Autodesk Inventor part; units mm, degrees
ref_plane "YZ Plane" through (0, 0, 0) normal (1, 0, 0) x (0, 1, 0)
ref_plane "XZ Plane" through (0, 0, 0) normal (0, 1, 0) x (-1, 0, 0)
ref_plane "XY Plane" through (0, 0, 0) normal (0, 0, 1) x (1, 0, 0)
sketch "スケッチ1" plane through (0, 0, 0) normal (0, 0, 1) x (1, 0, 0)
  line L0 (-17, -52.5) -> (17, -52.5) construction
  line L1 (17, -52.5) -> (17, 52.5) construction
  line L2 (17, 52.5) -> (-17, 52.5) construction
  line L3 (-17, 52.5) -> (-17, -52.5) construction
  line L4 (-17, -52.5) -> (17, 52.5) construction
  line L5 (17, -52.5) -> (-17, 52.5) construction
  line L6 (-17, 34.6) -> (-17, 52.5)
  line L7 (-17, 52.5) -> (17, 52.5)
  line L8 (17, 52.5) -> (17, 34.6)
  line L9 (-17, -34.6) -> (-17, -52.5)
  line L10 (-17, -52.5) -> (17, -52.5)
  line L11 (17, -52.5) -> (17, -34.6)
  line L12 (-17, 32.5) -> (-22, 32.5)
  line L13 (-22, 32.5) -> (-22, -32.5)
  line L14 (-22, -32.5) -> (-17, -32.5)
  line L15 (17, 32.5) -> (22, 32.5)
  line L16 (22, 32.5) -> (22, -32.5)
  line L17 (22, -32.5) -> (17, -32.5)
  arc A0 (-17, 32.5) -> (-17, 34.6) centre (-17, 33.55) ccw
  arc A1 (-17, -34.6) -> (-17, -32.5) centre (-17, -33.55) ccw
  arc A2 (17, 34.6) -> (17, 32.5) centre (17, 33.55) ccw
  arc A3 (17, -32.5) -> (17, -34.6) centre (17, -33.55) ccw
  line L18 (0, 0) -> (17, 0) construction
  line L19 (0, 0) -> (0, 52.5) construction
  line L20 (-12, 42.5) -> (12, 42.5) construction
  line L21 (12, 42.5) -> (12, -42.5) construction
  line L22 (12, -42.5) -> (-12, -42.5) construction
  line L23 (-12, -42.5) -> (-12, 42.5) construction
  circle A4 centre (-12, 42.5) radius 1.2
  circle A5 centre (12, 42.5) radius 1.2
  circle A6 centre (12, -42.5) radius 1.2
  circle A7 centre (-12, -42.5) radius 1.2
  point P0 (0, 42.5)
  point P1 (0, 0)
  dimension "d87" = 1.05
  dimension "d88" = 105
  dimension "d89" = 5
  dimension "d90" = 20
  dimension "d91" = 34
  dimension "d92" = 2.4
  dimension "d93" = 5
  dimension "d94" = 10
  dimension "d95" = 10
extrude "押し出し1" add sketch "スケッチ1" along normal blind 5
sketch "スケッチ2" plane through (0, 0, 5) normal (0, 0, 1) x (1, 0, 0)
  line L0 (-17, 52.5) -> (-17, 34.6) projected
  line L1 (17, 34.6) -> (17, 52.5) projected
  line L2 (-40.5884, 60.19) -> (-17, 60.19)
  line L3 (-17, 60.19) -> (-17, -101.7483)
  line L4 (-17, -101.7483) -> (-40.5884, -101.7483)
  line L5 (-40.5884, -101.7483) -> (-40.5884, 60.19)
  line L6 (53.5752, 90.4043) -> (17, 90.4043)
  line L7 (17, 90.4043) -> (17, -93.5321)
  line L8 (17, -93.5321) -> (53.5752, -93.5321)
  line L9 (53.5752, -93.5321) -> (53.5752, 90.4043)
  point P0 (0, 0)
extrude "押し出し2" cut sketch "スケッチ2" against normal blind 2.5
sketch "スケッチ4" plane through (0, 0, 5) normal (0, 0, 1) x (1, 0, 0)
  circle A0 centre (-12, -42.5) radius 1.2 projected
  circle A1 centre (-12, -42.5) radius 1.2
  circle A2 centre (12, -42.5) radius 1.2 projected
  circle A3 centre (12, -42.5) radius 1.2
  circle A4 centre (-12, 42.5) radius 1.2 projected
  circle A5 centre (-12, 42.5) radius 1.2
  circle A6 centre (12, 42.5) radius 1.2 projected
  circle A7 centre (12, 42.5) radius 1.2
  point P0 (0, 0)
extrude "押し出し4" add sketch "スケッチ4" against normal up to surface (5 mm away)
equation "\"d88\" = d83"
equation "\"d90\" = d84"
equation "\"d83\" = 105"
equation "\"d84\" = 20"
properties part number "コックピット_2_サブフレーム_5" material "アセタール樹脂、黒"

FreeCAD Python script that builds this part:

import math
import FreeCAD as App
import Part
import Sketcher
from FreeCAD import Vector
Q = App.Units.Quantity

doc = App.newDocument("Part")
body = doc.addObject("PartDesign::Body", "Body")

# Sketch on XY plane
sketch1 = body.newObject("Sketcher::SketchObject", "Sketch")
sketch1.AttachmentSupport = (doc.getObject("XY_Plane"), [""])
sketch1.MapMode = "FlatFace"
sketch1.addGeometry(Part.LineSegment(Vector(-17, 52.5, 0), Vector(-17, 34.6, 0)), False)
sketch1.addGeometry(Part.ArcOfCircle(Part.Circle(Vector(-17, 33.5, 0), Vector(0, 0, 1), 1), math.radians(-90), math.radians(90)), False)
sketch1.addGeometry(Part.LineSegment(Vector(-17, 32.5, 0), Vector(-22, 32.5, 0)), False)
sketch1.addGeometry(Part.LineSegment(Vector(-22, 32.5, 0), Vector(-22, -32.5, 0)), False)
sketch1.addGeometry(Part.LineSegment(Vector(-22, -32.5, 0), Vector(-17, -32.5, 0)), False)
sketch1.addGeometry(Part.ArcOfCircle(Part.Circle(Vector(-17, -33.5, 0), Vector(0, 0, 1), 1.1), math.radians(-90), math.radians(90)), False)
sketch1.addGeometry(Part.LineSegment(Vector(-17, -34.6, 0), Vector(-17, -52.5, 0)), False)
sketch1.addGeometry(Part.LineSegment(Vector(-17, -52.5, 0), Vector(17, -52.5, 0)), False)
sketch1.addGeometry(Part.LineSegment(Vector(17, -52.5, 0), Vector(17, -34.6, 0)), False)
sketch1.addGeometry(Part.ArcOfCircle(Part.Circle(Vector(17, -33.5, 0), Vector(0, 0, 1), 1), math.radians(90), math.radians(270)), False)
sketch1.addGeometry(Part.LineSegment(Vector(17, -32.5, 0), Vector(22, -32.5, 0)), False)
sketch1.addGeometry(Part.LineSegment(Vector(22, -32.5, 0), Vector(22, 32.5, 0)), False)
sketch1.addGeometry(Part.LineSegment(Vector(22, 32.5, 0), Vector(17, 32.5, 0)), False)
sketch1.addGeometry(Part.ArcOfCircle(Part.Circle(Vector(17, 33.5, 0), Vector(0, 0, 1), 1.1), math.radians(90), math.radians(270)), False)
sketch1.addGeometry(Part.LineSegment(Vector(17, 34.6, 0), Vector(17, 52.5, 0)), False)
sketch1.addGeometry(Part.LineSegment(Vector(17, 52.5, 0), Vector(-17, 52.5, 0)), False)
sketch1.addGeometry(Part.Circle(Vector(-12, -42.5, 0), Vector(0, 0, 1), 1.2), False)
sketch1.addGeometry(Part.Circle(Vector(12, -42.5, 0), Vector(0, 0, 1), 1.2), False)
sketch1.addGeometry(Part.Circle(Vector(-12, 42.5, 0), Vector(0, 0, 1), 1.2), False)
sketch1.addGeometry(Part.Circle(Vector(12, 42.5, 0), Vector(0, 0, 1), 1.2), False)
sketch1.addConstraint(Sketcher.Constraint("Coincident", 0, 2, 1, 2))
sketch1.addConstraint(Sketcher.Constraint("Tangent", 1, 1, 2, 1))
sketch1.addConstraint(Sketcher.Constraint("Coincident", 2, 2, 3, 1))
sketch1.addConstraint(Sketcher.Constraint("Coincident", 3, 2, 4, 1))
sketch1.addConstraint(Sketcher.Constraint("Tangent", 4, 2, 5, 2))
sketch1.addConstraint(Sketcher.Constraint("Coincident", 5, 1, 6, 1))
sketch1.addConstraint(Sketcher.Constraint("Coincident", 6, 2, 7, 1))
sketch1.addConstraint(Sketcher.Constraint("Coincident", 7, 2, 8, 1))
sketch1.addConstraint(Sketcher.Constraint("Coincident", 8, 2, 9, 2))
sketch1.addConstraint(Sketcher.Constraint("Tangent", 9, 1, 10, 1))
sketch1.addConstraint(Sketcher.Constraint("Coincident", 10, 2, 11, 1))
sketch1.addConstraint(Sketcher.Constraint("Coincident", 11, 2, 12, 1))
sketch1.addConstraint(Sketcher.Constraint("Tangent", 12, 2, 13, 2))
sketch1.addConstraint(Sketcher.Constraint("Coincident", 13, 1, 14, 1))
sketch1.addConstraint(Sketcher.Constraint("Coincident", 14, 2, 15, 1))
sketch1.addConstraint(Sketcher.Constraint("Coincident", 15, 2, 0, 1))
sketch1.addConstraint(Sketcher.Constraint("Vertical", 0))
sketch1.addConstraint(Sketcher.Constraint("Horizontal", 2))
sketch1.addConstraint(Sketcher.Constraint("Vertical", 3))
sketch1.addConstraint(Sketcher.Constraint("Horizontal", 4))
sketch1.addConstraint(Sketcher.Constraint("Vertical", 6))
sketch1.addConstraint(Sketcher.Constraint("Horizontal", 7))
sketch1.addConstraint(Sketcher.Constraint("Vertical", 8))
sketch1.addConstraint(Sketcher.Constraint("Horizontal", 10))
sketch1.addConstraint(Sketcher.Constraint("Vertical", 11))
sketch1.addConstraint(Sketcher.Constraint("Horizontal", 12))
sketch1.addConstraint(Sketcher.Constraint("Vertical", 14))
sketch1.addConstraint(Sketcher.Constraint("Horizontal", 15))
sketch1.addConstraint(Sketcher.Constraint("Equal", 1, 5))
sketch1.addConstraint(Sketcher.Constraint("Equal", 5, 9))
sketch1.addConstraint(Sketcher.Constraint("Equal", 9, 13))
sketch1.addConstraint(Sketcher.Constraint("Equal", 16, 17))
sketch1.addConstraint(Sketcher.Constraint("Equal", 17, 18))
sketch1.addConstraint(Sketcher.Constraint("Equal", 18, 19))
sketch1.addConstraint(Sketcher.Constraint("Symmetric", 1, 3, 9, 3, -1, 1))
sketch1.addConstraint(Sketcher.Constraint("Symmetric", 5, 3, 13, 3, -1, 1))
sketch1.addConstraint(Sketcher.Constraint("Symmetric", 17, 3, 18, 3, -1, 1))
sketch1.addConstraint(Sketcher.Constraint("Symmetric", 16, 3, 19, 3, -1, 1))
sketch1.addConstraint(Sketcher.Constraint("Symmetric", 6, 2, 14, 2, -1, 1))
sketch1.addConstraint(Sketcher.Constraint("Symmetric", 5, 3, 9, 3, -2))
sketch1.addConstraint(Sketcher.Constraint("Symmetric", 16, 3, 17, 3, -2))
sketch1.addConstraint(Sketcher.Constraint("Vertical", 5, 3, 0, 2))
sketch1.addConstraint(Sketcher.Constraint("Vertical", 4, 2, 5, 1))
sketch1.addConstraint(Sketcher.Constraint("Vertical", 13, 3, 7, 2))
sketch1.addConstraint(Sketcher.Constraint("Equal", 4, 10))
sketch1.addConstraint(Sketcher.Constraint("Diameter", 16, Q("2.4 mm")))
sketch1.addConstraint(Sketcher.Constraint("DistanceX", 2, 2, 2, 1, Q("5 mm")))
sketch1.addConstraint(Sketcher.Constraint("DistanceX", 7, 1, 7, 2, Q("34 mm")))
sketch1.addConstraint(Sketcher.Constraint("Radius", 1, Q("1.05 mm")))
sketch1.addConstraint(Sketcher.Constraint("DistanceX", 5, 3, 16, 3, Q("5 mm")))
sketch1.addConstraint(Sketcher.Constraint("DistanceY", 1, 1, 18, 3, Q("10 mm")))
sketch1.addConstraint(Sketcher.Constraint("DistanceY", 6, 2, 16, 3, Q("10 mm")))
sketch1.addConstraint(Sketcher.Constraint("DistanceY", 3, 2, 3, 1, Q("65 mm")))
pad1 = body.newObject("PartDesign::Pad", "Pad")
pad1.Profile = sketch1
pad1.Length = 5

# Sketch on XY plane
sketch2 = body.newObject("Sketcher::SketchObject", "Sketch001")
sketch2.AttachmentSupport = (doc.getObject("XY_Plane"), [""])
sketch2.MapMode = "FlatFace"
sketch2.AttachmentOffset = App.Placement(Vector(0, 0, 5), App.Rotation())
sketch2.addGeometry(Part.LineSegment(Vector(-17, -102, 0), Vector(-17, 60, 0)), False)
sketch2.addGeometry(Part.LineSegment(Vector(-17, 60, 0), Vector(-41, 60, 0)), False)
sketch2.addGeometry(Part.LineSegment(Vector(-41, 60, 0), Vector(-41, -102, 0)), False)
sketch2.addGeometry(Part.LineSegment(Vector(-41, -102, 0), Vector(-17, -102, 0)), False)
sketch2.addGeometry(Part.LineSegment(Vector(17, 90, 0), Vector(17, -94, 0)), False)
sketch2.addGeometry(Part.LineSegment(Vector(17, -94, 0), Vector(54, -94, 0)), False)
sketch2.addGeometry(Part.LineSegment(Vector(54, -94, 0), Vector(54, 90, 0)), False)
sketch2.addGeometry(Part.LineSegment(Vector(54, 90, 0), Vector(17, 90, 0)), False)
sketch2.addConstraint(Sketcher.Constraint("Coincident", 0, 2, 1, 1))
sketch2.addConstraint(Sketcher.Constraint("Coincident", 1, 2, 2, 1))
sketch2.addConstraint(Sketcher.Constraint("Coincident", 2, 2, 3, 1))
sketch2.addConstraint(Sketcher.Constraint("Coincident", 3, 2, 0, 1))
sketch2.addConstraint(Sketcher.Constraint("Coincident", 4, 2, 5, 1))
sketch2.addConstraint(Sketcher.Constraint("Coincident", 5, 2, 6, 1))
sketch2.addConstraint(Sketcher.Constraint("Coincident", 6, 2, 7, 1))
sketch2.addConstraint(Sketcher.Constraint("Coincident", 7, 2, 4, 1))
sketch2.addConstraint(Sketcher.Constraint("Vertical", 0))
sketch2.addConstraint(Sketcher.Constraint("Horizontal", 1))
sketch2.addConstraint(Sketcher.Constraint("Vertical", 2))
sketch2.addConstraint(Sketcher.Constraint("Horizontal", 3))
sketch2.addConstraint(Sketcher.Constraint("Vertical", 4))
sketch2.addConstraint(Sketcher.Constraint("Horizontal", 5))
sketch2.addConstraint(Sketcher.Constraint("Vertical", 6))
sketch2.addConstraint(Sketcher.Constraint("Horizontal", 7))
sketch2.addConstraint(Sketcher.Constraint("DistanceX", 0, 2, -1, 1, Q("17 mm")))
sketch2.addConstraint(Sketcher.Constraint("DistanceX", -1, 1, 4, 2, Q("17 mm")))
sketch2.addConstraint(Sketcher.Constraint("DistanceY", -1, 1, 0, 2, Q("60.19 mm")))
sketch2.addConstraint(Sketcher.Constraint("DistanceX", 1, 2, 1, 1, Q("23.5884 mm")))
sketch2.addConstraint(Sketcher.Constraint("DistanceX", 5, 1, 5, 2, Q("36.5752 mm")))
sketch2.addConstraint(Sketcher.Constraint("DistanceY", 0, 1, 0, 2, Q("161.9383 mm")))
sketch2.addConstraint(Sketcher.Constraint("DistanceY", 4, 2, 4, 1, Q("183.9364 mm")))
sketch2.addConstraint(Sketcher.Constraint("DistanceY", 4, 2, -1, 1, Q("93.532 mm")))
pocket1 = body.newObject("PartDesign::Pocket", "Pocket")
pocket1.Profile = sketch2
pocket1.Length = 2.5

# Sketch on XY plane
sketch3 = body.newObject("Sketcher::SketchObject", "Sketch002")
sketch3.AttachmentSupport = (doc.getObject("XY_Plane"), [""])
sketch3.MapMode = "FlatFace"
sketch3.AttachmentOffset = App.Placement(Vector(0, 0, 5), App.Rotation())
sketch3.addGeometry(Part.Circle(Vector(-12, -42.5, 0), Vector(0, 0, 1), 1.2), False)
sketch3.addGeometry(Part.Circle(Vector(12, -42.5, 0), Vector(0, 0, 1), 1.2), False)
sketch3.addGeometry(Part.Circle(Vector(-12, 42.5, 0), Vector(0, 0, 1), 1.2), False)
sketch3.addGeometry(Part.Circle(Vector(12, 42.5, 0), Vector(0, 0, 1), 1.2), False)
sketch3.addConstraint(Sketcher.Constraint("Equal", 0, 1))
sketch3.addConstraint(Sketcher.Constraint("Equal", 1, 2))
sketch3.addConstraint(Sketcher.Constraint("Equal", 2, 3))
sketch3.addConstraint(Sketcher.Constraint("Symmetric", 1, 3, 2, 3, -1, 1))
sketch3.addConstraint(Sketcher.Constraint("Symmetric", 0, 3, 3, 3, -1, 1))
sketch3.addConstraint(Sketcher.Constraint("Symmetric", 0, 3, 1, 3, -2))
sketch3.addConstraint(Sketcher.Constraint("Diameter", 0, Q("2.4 mm")))
sketch3.addConstraint(Sketcher.Constraint("DistanceX", 0, 3, -1, 1, Q("12 mm")))
sketch3.addConstraint(Sketcher.Constraint("DistanceY", 0, 3, 2, 3, Q("85 mm")))
pad2 = body.newObject("PartDesign::Pad", "Pad001")
pad2.Profile = sketch3
pad2.Length = 5
pad2.Reversed = True

doc.recompute()
